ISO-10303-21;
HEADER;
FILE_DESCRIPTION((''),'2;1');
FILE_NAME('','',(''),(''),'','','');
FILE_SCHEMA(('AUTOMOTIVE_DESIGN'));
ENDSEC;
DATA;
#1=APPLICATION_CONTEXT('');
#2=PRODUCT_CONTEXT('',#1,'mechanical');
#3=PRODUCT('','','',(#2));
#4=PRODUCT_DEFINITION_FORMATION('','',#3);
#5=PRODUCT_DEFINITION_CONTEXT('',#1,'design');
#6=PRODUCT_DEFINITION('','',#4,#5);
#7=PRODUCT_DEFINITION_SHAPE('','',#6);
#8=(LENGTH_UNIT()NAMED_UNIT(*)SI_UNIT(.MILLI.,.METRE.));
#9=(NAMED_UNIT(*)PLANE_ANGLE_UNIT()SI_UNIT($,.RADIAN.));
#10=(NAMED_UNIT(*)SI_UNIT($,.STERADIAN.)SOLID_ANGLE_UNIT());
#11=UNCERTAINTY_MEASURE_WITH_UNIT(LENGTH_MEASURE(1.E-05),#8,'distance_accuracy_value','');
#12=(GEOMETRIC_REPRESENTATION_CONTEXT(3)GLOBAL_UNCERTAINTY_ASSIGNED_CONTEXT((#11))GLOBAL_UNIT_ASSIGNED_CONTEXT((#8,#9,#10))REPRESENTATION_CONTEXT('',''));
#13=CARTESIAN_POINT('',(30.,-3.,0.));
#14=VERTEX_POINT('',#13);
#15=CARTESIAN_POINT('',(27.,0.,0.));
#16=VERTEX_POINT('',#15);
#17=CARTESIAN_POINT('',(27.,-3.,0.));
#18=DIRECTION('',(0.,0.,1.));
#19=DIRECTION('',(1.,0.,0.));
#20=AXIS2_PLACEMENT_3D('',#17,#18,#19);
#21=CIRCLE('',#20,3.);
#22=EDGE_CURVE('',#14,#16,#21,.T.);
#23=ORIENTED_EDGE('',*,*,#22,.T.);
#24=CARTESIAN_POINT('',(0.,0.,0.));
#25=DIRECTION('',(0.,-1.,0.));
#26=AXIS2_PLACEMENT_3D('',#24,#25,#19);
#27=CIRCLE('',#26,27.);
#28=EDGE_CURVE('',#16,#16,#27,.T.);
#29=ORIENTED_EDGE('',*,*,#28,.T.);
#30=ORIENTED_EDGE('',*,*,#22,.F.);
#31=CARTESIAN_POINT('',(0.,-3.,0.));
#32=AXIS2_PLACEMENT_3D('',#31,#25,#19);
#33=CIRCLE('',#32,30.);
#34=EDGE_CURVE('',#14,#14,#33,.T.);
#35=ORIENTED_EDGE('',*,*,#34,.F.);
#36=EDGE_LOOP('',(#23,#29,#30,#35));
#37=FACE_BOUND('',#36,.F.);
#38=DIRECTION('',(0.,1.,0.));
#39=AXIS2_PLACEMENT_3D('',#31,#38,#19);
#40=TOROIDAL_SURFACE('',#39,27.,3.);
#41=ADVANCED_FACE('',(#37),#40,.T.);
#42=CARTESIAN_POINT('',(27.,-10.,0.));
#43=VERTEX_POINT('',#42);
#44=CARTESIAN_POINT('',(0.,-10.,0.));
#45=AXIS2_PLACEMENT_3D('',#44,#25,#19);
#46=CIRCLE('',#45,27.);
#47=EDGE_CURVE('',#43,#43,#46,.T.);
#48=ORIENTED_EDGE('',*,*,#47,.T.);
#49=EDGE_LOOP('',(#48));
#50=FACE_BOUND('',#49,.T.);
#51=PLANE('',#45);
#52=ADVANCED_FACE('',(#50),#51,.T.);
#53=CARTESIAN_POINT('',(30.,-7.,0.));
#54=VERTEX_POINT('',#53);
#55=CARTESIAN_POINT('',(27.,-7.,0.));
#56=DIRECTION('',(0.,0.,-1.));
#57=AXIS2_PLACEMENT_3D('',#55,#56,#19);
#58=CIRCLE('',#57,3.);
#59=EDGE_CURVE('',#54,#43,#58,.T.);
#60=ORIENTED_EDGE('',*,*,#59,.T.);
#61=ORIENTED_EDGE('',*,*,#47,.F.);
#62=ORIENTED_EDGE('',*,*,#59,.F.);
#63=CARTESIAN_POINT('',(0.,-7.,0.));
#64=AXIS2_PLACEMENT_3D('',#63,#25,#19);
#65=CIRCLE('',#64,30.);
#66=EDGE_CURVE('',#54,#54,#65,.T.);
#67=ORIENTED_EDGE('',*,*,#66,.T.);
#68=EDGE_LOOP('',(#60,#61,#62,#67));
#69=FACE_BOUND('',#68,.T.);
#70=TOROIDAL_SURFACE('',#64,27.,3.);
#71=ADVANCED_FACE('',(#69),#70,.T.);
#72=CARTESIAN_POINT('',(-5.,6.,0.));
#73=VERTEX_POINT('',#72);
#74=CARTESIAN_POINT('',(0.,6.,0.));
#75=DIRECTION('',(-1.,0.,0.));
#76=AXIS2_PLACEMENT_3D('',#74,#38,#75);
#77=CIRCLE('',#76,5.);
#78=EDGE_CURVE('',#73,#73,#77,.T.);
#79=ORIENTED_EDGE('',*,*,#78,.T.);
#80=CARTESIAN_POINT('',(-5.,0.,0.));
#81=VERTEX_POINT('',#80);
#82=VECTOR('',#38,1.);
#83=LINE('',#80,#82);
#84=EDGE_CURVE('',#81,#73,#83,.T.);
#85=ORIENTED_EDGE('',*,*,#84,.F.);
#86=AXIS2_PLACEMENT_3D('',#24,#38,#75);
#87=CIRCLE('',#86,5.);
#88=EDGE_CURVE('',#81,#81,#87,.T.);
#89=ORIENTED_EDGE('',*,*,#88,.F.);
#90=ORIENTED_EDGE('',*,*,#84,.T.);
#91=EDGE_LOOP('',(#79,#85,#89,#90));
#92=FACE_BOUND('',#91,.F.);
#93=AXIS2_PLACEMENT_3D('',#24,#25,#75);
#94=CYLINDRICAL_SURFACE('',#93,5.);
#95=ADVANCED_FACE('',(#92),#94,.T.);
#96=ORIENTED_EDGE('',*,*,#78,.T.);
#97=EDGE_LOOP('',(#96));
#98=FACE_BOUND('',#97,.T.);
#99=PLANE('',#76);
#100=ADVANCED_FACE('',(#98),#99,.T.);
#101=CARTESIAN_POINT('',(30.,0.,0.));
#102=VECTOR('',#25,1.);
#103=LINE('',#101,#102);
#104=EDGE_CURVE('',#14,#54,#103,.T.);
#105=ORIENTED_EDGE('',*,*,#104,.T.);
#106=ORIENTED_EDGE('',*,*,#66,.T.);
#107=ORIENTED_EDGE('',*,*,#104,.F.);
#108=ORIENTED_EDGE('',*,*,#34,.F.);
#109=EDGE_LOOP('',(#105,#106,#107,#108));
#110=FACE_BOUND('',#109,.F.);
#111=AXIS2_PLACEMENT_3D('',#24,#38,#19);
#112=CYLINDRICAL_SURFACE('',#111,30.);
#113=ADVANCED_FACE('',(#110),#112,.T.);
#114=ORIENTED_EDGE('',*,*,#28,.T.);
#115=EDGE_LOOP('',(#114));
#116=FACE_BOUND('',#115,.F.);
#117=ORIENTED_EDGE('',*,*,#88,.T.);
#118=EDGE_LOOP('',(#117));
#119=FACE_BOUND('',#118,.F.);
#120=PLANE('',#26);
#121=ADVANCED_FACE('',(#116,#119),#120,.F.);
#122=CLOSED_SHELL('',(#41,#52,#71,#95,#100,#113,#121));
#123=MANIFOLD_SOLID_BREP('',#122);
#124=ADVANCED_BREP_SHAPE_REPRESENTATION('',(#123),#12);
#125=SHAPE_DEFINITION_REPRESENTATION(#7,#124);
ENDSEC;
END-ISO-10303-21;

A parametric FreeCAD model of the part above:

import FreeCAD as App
import Part
import Sketcher

V = App.Vector


def edges_at(feature, points):
    """Names of the edges that pass closest to the given points."""
    edges = feature.Shape.Edges
    near = lambda p: min(range(len(edges)), key=lambda i: edges[i].distToShape(Part.Vertex(*p))[0])
    return sorted({f"Edge{near(p) + 1}" for p in points})

doc = App.newDocument("Part")
body = doc.addObject("PartDesign::Body", "Body")

# Sketch on XZ plane
sketch1 = body.newObject("Sketcher::SketchObject", "Sketch")
sketch1.AttachmentSupport = (doc.getObject("XZ_Plane"), [""])
sketch1.MapMode = "FlatFace"
sketch1.addGeometry(Part.Circle(V(0, 0, 0), V(0, 0, 1), 30), False)
sketch1.addConstraint([
    Sketcher.Constraint("Coincident", 0, 3, -1, 1),
    Sketcher.Constraint("Diameter", 0, 60.0),
])
pad1 = body.newObject("PartDesign::Pad", "Pad")
pad1.Profile = sketch1
pad1.Length = 10
doc.recompute()

fillet = body.newObject("PartDesign::Fillet", "Fillet")
fillet.Base = (pad1, edges_at(pad1, [(-30, -10, 0), (-30, 0, 0)]))
fillet.Radius = 3

# Sketch on XZ plane
sketch2 = body.newObject("Sketcher::SketchObject", "Sketch001")
sketch2.AttachmentSupport = (doc.getObject("XZ_Plane"), [""])
sketch2.MapMode = "FlatFace"
sketch2.addGeometry(Part.Circle(V(0, 0, 0), V(0, 0, 1), 5), False)
sketch2.addConstraint([
    Sketcher.Constraint("Coincident", 0, 3, -1, 1),
    Sketcher.Constraint("Diameter", 0, 10.0),
])
pad2 = body.newObject("PartDesign::Pad", "Pad001")
pad2.Profile = sketch2
pad2.Length = 6
pad2.Reversed = True

doc.recompute()
